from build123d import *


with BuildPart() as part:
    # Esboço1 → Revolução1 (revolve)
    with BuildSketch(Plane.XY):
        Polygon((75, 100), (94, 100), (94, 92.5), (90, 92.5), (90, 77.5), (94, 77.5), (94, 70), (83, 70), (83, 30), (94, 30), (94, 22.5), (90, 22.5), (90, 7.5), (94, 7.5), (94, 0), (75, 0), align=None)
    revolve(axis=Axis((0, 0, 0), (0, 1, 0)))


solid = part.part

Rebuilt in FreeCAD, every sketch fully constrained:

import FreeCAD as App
import Part
import Sketcher

doc = App.newDocument("Part")
params = doc.addObject("Spreadsheet::Sheet", "Params")
for row, (alias, value) in enumerate([
    ("sketch1_width", "19 mm"),
    ("sketch1_width2", "4 mm"),
    ("sketch1_width3", "11 mm"),
    ("sketch1_height", "100 mm"),
    ("sketch1_height2", "15 mm"),
    ("revolution_angle", "360 deg"),
], start=1):
    params.set(f"A{row}", alias)
    params.set(f"B{row}", "=" + value)
    params.setAlias(f"B{row}", alias)

body = doc.addObject("PartDesign::Body", "Body")

sketch1 = body.newObject("Sketcher::SketchObject", "Sketch")
sketch1.AttachmentSupport = (doc.getObject("XY_Plane"), [""])
sketch1.MapMode = "FlatFace"
sketch1.addGeometry([
    Part.LineSegment(App.Vector(94, 100, 0), App.Vector(75, 100, 0)),
    Part.LineSegment(App.Vector(75, 100, 0), App.Vector(75, 0, 0)),
    Part.LineSegment(App.Vector(75, 0, 0), App.Vector(94, 0, 0)),
    Part.LineSegment(App.Vector(94, 0, 0), App.Vector(94, 7.5, 0)),
    Part.LineSegment(App.Vector(94, 7.5, 0), App.Vector(90, 7.5, 0)),
    Part.LineSegment(App.Vector(90, 7.5, 0), App.Vector(90, 22.5, 0)),
    Part.LineSegment(App.Vector(90, 22.5, 0), App.Vector(94, 22.5, 0)),
    Part.LineSegment(App.Vector(94, 22.5, 0), App.Vector(94, 30, 0)),
    Part.LineSegment(App.Vector(94, 30, 0), App.Vector(83, 30, 0)),
    Part.LineSegment(App.Vector(83, 30, 0), App.Vector(83, 70, 0)),
    Part.LineSegment(App.Vector(83, 70, 0), App.Vector(94, 70, 0)),
    Part.LineSegment(App.Vector(94, 70, 0), App.Vector(94, 77.5, 0)),
    Part.LineSegment(App.Vector(94, 77.5, 0), App.Vector(90, 77.5, 0)),
    Part.LineSegment(App.Vector(90, 77.5, 0), App.Vector(90, 92.5, 0)),
    Part.LineSegment(App.Vector(90, 92.5, 0), App.Vector(94, 92.5, 0)),
    Part.LineSegment(App.Vector(94, 92.5, 0), App.Vector(94, 100, 0)),
], False)
sketch1.addConstraint([
    Sketcher.Constraint("Coincident", 0, 2, 1, 1),
    Sketcher.Constraint("Coincident", 1, 2, 2, 1),
    Sketcher.Constraint("Coincident", 2, 2, 3, 1),
    Sketcher.Constraint("Coincident", 3, 2, 4, 1),
    Sketcher.Constraint("Coincident", 4, 2, 5, 1),
    Sketcher.Constraint("Coincident", 5, 2, 6, 1),
    Sketcher.Constraint("Coincident", 6, 2, 7, 1),
    Sketcher.Constraint("Coincident", 7, 2, 8, 1),
    Sketcher.Constraint("Coincident", 8, 2, 9, 1),
    Sketcher.Constraint("Coincident", 9, 2, 10, 1),
    Sketcher.Constraint("Coincident", 10, 2, 11, 1),
    Sketcher.Constraint("Coincident", 11, 2, 12, 1),
    Sketcher.Constraint("Coincident", 12, 2, 13, 1),
    Sketcher.Constraint("Coincident", 13, 2, 14, 1),
    Sketcher.Constraint("Coincident", 14, 2, 15, 1),
    Sketcher.Constraint("Coincident", 15, 2, 0, 1),
    Sketcher.Constraint("Horizontal", 0),
    Sketcher.Constraint("Vertical", 1),
    Sketcher.Constraint("Horizontal", 2),
    Sketcher.Constraint("Vertical", 3),
    Sketcher.Constraint("Horizontal", 4),
    Sketcher.Constraint("Vertical", 5),
    Sketcher.Constraint("Horizontal", 6),
    Sketcher.Constraint("Vertical", 7),
    Sketcher.Constraint("Horizontal", 8),
    Sketcher.Constraint("Vertical", 9),
    Sketcher.Constraint("Horizontal", 10),
    Sketcher.Constraint("Vertical", 11),
    Sketcher.Constraint("Horizontal", 12),
    Sketcher.Constraint("Vertical", 13),
    Sketcher.Constraint("Horizontal", 14),
    Sketcher.Constraint("Vertical", 15),
    Sketcher.Constraint("PointOnObject", 1, 2, -1),
    Sketcher.Constraint("Vertical", 3, 2, 6, 2),
    Sketcher.Constraint("Vertical", 7, 2, 10, 2),
    Sketcher.Constraint("Vertical", 5, 2, 12, 2),
    Sketcher.Constraint("Vertical", 11, 2, 14, 2),
    Sketcher.Constraint("Equal", 3, 7),
    Sketcher.Constraint("Equal", 7, 11),
    Sketcher.Constraint("Equal", 5, 13),
    Sketcher.Constraint("Equal", 11, 15),
    Sketcher.Constraint("DistanceX", 0, 2, 0, 1, 19.0),
    Sketcher.Constraint("DistanceX", 4, 2, 4, 1, 4.0),
    Sketcher.Constraint("DistanceX", 8, 2, 8, 1, 11.0),
    Sketcher.Constraint("DistanceY", 1, 2, 1, 1, 100.0),
    Sketcher.Constraint("DistanceY", 5, 1, 5, 2, 15.0),
    Sketcher.Constraint("DistanceY", 9, 1, 9, 2, 40.0),
    Sketcher.Constraint("DistanceX", -1, 1, 0, 2, 75.0),
])
sketch1.setExpression("Constraints[41]", "Params.sketch1_width")
sketch1.setExpression("Constraints[42]", "Params.sketch1_width2")
sketch1.setExpression("Constraints[43]", "Params.sketch1_width3")
sketch1.setExpression("Constraints[44]", "Params.sketch1_height")
sketch1.setExpression("Constraints[45]", "Params.sketch1_height2")
revolution = body.newObject("PartDesign::Revolution", "Revolution")
revolution.Profile = sketch1
revolution.ReferenceAxis = (sketch1, ["V_Axis"])
revolution.setExpression("Angle", "Params.revolution_angle")

doc.recompute()
